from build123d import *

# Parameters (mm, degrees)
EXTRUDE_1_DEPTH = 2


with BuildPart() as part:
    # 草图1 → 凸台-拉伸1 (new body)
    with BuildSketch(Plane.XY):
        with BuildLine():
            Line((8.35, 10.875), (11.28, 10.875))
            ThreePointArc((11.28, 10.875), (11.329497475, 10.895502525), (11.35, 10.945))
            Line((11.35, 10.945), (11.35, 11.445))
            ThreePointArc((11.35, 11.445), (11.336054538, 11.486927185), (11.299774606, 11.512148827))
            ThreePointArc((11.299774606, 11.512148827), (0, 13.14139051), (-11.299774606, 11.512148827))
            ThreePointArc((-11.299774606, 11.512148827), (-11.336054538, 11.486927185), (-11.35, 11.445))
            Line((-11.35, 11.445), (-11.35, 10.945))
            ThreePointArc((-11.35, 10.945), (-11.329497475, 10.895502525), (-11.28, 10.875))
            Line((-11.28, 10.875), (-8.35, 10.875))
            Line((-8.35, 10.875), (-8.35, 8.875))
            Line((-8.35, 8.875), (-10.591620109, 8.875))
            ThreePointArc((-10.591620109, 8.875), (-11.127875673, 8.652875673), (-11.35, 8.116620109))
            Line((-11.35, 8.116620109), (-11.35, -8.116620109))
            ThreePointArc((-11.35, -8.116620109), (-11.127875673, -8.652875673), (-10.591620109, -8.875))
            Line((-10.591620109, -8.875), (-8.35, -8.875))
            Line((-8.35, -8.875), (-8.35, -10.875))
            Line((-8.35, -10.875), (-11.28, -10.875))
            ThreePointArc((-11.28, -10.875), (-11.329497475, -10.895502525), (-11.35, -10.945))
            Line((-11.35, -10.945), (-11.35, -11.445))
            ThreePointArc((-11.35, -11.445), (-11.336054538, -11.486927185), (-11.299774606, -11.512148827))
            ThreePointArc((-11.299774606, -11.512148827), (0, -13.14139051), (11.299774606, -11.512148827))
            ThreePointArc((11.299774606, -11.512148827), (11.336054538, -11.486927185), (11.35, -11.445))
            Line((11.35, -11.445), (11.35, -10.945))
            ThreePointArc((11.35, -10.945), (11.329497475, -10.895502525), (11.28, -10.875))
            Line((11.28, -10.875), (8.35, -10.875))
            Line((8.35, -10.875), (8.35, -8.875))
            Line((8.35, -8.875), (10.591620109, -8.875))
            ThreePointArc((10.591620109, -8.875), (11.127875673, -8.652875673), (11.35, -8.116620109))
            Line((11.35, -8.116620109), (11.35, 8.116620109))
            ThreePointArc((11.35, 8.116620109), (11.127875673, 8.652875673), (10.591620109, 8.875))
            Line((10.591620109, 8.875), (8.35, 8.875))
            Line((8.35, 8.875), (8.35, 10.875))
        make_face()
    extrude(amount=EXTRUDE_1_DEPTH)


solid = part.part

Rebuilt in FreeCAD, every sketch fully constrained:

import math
import FreeCAD as App
import Part
import Sketcher
from FreeCAD import Vector
Q = App.Units.Quantity

doc = App.newDocument("Part")
body = doc.addObject("PartDesign::Body", "Body")

# Sketch on XY plane
sketch1 = doc.addObject("Sketcher::SketchObject", "Sketch")
body.addObject(sketch1)
sketch1.AttachmentSupport = (doc.XY_Plane, [""])
sketch1.MapMode = "FlatFace"
sketch1.addGeometry([
    Part.LineSegment(Vector(8.35, 10.88, 0), Vector(11.28, 10.88, 0)),  # 0
    Part.ArcOfCircle(Part.Circle(Vector(11.28, 10.94, 0), Vector(0, 0, 1), 0.07), math.radians(-90), math.radians(0)),  # 1
    Part.LineSegment(Vector(11.35, 10.95, 0), Vector(11.35, 11.45, 0)),  # 2
    Part.ArcOfCircle(Part.Circle(Vector(11.28, 11.45, 0), Vector(0, 0, 1), 0.07), math.radians(0), math.radians(74)),  # 3
    Part.ArcOfCircle(Part.Circle(Vector(0, -26.86, 0), Vector(0, 0, 1), 40), math.radians(74), math.radians(106)),  # 4
    Part.ArcOfCircle(Part.Circle(Vector(-11.28, 11.45, 0), Vector(0, 0, 1), 0.07), math.radians(106), math.radians(180)),  # 5
    Part.LineSegment(Vector(-11.35, 11.45, 0), Vector(-11.35, 10.95, 0)),  # 6
    Part.ArcOfCircle(Part.Circle(Vector(-11.28, 10.94, 0), Vector(0, 0, 1), 0.07), math.radians(180), math.radians(270)),  # 7
    Part.LineSegment(Vector(-11.28, 10.88, 0), Vector(-8.35, 10.88, 0)),  # 8
    Part.LineSegment(Vector(-8.35, 10.88, 0), Vector(-8.35, 8.88, 0)),  # 9
    Part.LineSegment(Vector(-8.35, 8.88, 0), Vector(-10.59, 8.88, 0)),  # 10
    Part.ArcOfCircle(Part.Circle(Vector(-10.59, 8.12, 0), Vector(0, 0, 1), 0.76), math.radians(90), math.radians(180)),  # 11
    Part.LineSegment(Vector(-11.35, 8.12, 0), Vector(-11.35, -8.12, 0)),  # 12
    Part.ArcOfCircle(Part.Circle(Vector(-10.59, -8.12, 0), Vector(0, 0, 1), 0.76), math.radians(180), math.radians(270)),  # 13
    Part.LineSegment(Vector(-10.59, -8.88, 0), Vector(-8.35, -8.88, 0)),  # 14
    Part.LineSegment(Vector(-8.35, -8.88, 0), Vector(-8.35, -10.88, 0)),  # 15
    Part.LineSegment(Vector(-8.35, -10.88, 0), Vector(-11.28, -10.88, 0)),  # 16
    Part.ArcOfCircle(Part.Circle(Vector(-11.28, -10.94, 0), Vector(0, 0, 1), 0.07), math.radians(90), math.radians(180)),  # 17
    Part.LineSegment(Vector(-11.35, -10.95, 0), Vector(-11.35, -11.45, 0)),  # 18
    Part.ArcOfCircle(Part.Circle(Vector(-11.28, -11.45, 0), Vector(0, 0, 1), 0.07), math.radians(180), math.radians(254)),  # 19
    Part.ArcOfCircle(Part.Circle(Vector(0, 26.86, 0), Vector(0, 0, 1), 40), math.radians(-106), math.radians(-74)),  # 20
    Part.ArcOfCircle(Part.Circle(Vector(11.28, -11.45, 0), Vector(0, 0, 1), 0.07), math.radians(-74), math.radians(0)),  # 21
    Part.LineSegment(Vector(11.35, -11.45, 0), Vector(11.35, -10.95, 0)),  # 22
    Part.ArcOfCircle(Part.Circle(Vector(11.28, -10.94, 0), Vector(0, 0, 1), 0.07), math.radians(0), math.radians(90)),  # 23
    Part.LineSegment(Vector(11.28, -10.88, 0), Vector(8.35, -10.88, 0)),  # 24
    Part.LineSegment(Vector(8.35, -10.88, 0), Vector(8.35, -8.88, 0)),  # 25
    Part.LineSegment(Vector(8.35, -8.88, 0), Vector(10.59, -8.88, 0)),  # 26
    Part.ArcOfCircle(Part.Circle(Vector(10.59, -8.12, 0), Vector(0, 0, 1), 0.76), math.radians(-90), math.radians(0)),  # 27
    Part.LineSegment(Vector(11.35, -8.12, 0), Vector(11.35, 8.12, 0)),  # 28
    Part.ArcOfCircle(Part.Circle(Vector(10.59, 8.12, 0), Vector(0, 0, 1), 0.76), math.radians(0), math.radians(90)),  # 29
    Part.LineSegment(Vector(10.59, 8.88, 0), Vector(8.35, 8.88, 0)),  # 30
    Part.LineSegment(Vector(8.35, 8.88, 0), Vector(8.35, 10.88, 0)),  # 31
], False)
sketch1.addConstraint([
    Sketcher.Constraint("Tangent", 0, 2, 1, 1),
    Sketcher.Constraint("Tangent", 1, 2, 2, 1),
    Sketcher.Constraint("Tangent", 2, 2, 3, 1),
    Sketcher.Constraint("Tangent", 3, 2, 4, 1),
    Sketcher.Constraint("Tangent", 4, 2, 5, 1),
    Sketcher.Constraint("Tangent", 5, 2, 6, 1),
    Sketcher.Constraint("Tangent", 6, 2, 7, 1),
    Sketcher.Constraint("Tangent", 7, 2, 8, 1),
    Sketcher.Constraint("Coincident", 8, 2, 9, 1),
    Sketcher.Constraint("Coincident", 9, 2, 10, 1),
    Sketcher.Constraint("Tangent", 10, 2, 11, 1),
    Sketcher.Constraint("Tangent", 11, 2, 12, 1),
    Sketcher.Constraint("Tangent", 12, 2, 13, 1),
    Sketcher.Constraint("Tangent", 13, 2, 14, 1),
    Sketcher.Constraint("Coincident", 14, 2, 15, 1),
    Sketcher.Constraint("Coincident", 15, 2, 16, 1),
    Sketcher.Constraint("Tangent", 16, 2, 17, 1),
    Sketcher.Constraint("Tangent", 17, 2, 18, 1),
    Sketcher.Constraint("Tangent", 18, 2, 19, 1),
    Sketcher.Constraint("Tangent", 19, 2, 20, 1),
    Sketcher.Constraint("Tangent", 20, 2, 21, 1),
    Sketcher.Constraint("Tangent", 21, 2, 22, 1),
    Sketcher.Constraint("Tangent", 22, 2, 23, 1),
    Sketcher.Constraint("Tangent", 23, 2, 24, 1),
    Sketcher.Constraint("Coincident", 24, 2, 25, 1),
    Sketcher.Constraint("Coincident", 25, 2, 26, 1),
    Sketcher.Constraint("Tangent", 26, 2, 27, 1),
    Sketcher.Constraint("Tangent", 27, 2, 28, 1),
    Sketcher.Constraint("Tangent", 28, 2, 29, 1),
    Sketcher.Constraint("Tangent", 29, 2, 30, 1),
    Sketcher.Constraint("Coincident", 30, 2, 31, 1),
    Sketcher.Constraint("Coincident", 31, 2, 0, 1),
    Sketcher.Constraint("Horizontal", 0),
    Sketcher.Constraint("Vertical", 2),
    Sketcher.Constraint("Vertical", 6),
    Sketcher.Constraint("Horizontal", 8),
    Sketcher.Constraint("Vertical", 9),
    Sketcher.Constraint("Horizontal", 10),
    Sketcher.Constraint("Vertical", 12),
    Sketcher.Constraint("Horizontal", 14),
    Sketcher.Constraint("Vertical", 15),
    Sketcher.Constraint("Horizontal", 16),
    Sketcher.Constraint("Vertical", 18),
    Sketcher.Constraint("Vertical", 22),
    Sketcher.Constraint("Horizontal", 24),
    Sketcher.Constraint("Vertical", 25),
    Sketcher.Constraint("Horizontal", 26),
    Sketcher.Constraint("Vertical", 28),
    Sketcher.Constraint("Horizontal", 30),
    Sketcher.Constraint("Vertical", 31),
    Sketcher.Constraint("Equal", 1, 3),
    Sketcher.Constraint("Equal", 3, 5),
    Sketcher.Constraint("Equal", 5, 7),
    Sketcher.Constraint("Equal", 11, 13),
    Sketcher.Constraint("Equal", 7, 17),
    Sketcher.Constraint("Equal", 17, 19),
    Sketcher.Constraint("Equal", 4, 20),
    Sketcher.Constraint("Equal", 19, 21),
    Sketcher.Constraint("Equal", 21, 23),
    Sketcher.Constraint("Equal", 13, 27),
    Sketcher.Constraint("Equal", 27, 29),
    Sketcher.Constraint("Symmetric", 1, 3, 17, 3, -1, 1),
    Sketcher.Constraint("Symmetric", 4, 3, 20, 3, -1, 1),
    Sketcher.Constraint("Symmetric", 7, 3, 23, 3, -1, 1),
    Sketcher.Constraint("Symmetric", 11, 3, 27, 3, -1, 1),
    Sketcher.Constraint("Symmetric", 14, 2, 30, 2, -1, 1),
    Sketcher.Constraint("Symmetric", 3, 3, 5, 3, -2),
    Sketcher.Constraint("Symmetric", 15, 2, 24, 2, -2),
    Sketcher.Constraint("Symmetric", 9, 2, 30, 2, -2),
    Sketcher.Constraint("Vertical", 6, 2, 11, 2),
    Sketcher.Constraint("Radius", 4, Q("40 mm")),
    Sketcher.Constraint("DistanceY", 9, 2, 9, 1, Q("2 mm")),
    Sketcher.Constraint("Radius", 1, Q("0.07 mm")),
    Sketcher.Constraint("DistanceY", 2, 1, 2, 2, Q("0.5 mm")),
    Sketcher.Constraint("DistanceX", 6, 2, 8, 2, Q("3 mm")),
    Sketcher.Constraint("DistanceX", -1, 1, 1, 3, Q("11.28 mm")),
    Sketcher.Constraint("Radius", 11, Q("0.75838 mm")),
    Sketcher.Constraint("DistanceY", 17, 3, 7, 3, Q("21.89 mm")),
])
pad1 = doc.addObject("PartDesign::Pad", "Pad")
body.addObject(pad1)
pad1.Profile = sketch1
pad1.Length = 2

doc.recompute()
